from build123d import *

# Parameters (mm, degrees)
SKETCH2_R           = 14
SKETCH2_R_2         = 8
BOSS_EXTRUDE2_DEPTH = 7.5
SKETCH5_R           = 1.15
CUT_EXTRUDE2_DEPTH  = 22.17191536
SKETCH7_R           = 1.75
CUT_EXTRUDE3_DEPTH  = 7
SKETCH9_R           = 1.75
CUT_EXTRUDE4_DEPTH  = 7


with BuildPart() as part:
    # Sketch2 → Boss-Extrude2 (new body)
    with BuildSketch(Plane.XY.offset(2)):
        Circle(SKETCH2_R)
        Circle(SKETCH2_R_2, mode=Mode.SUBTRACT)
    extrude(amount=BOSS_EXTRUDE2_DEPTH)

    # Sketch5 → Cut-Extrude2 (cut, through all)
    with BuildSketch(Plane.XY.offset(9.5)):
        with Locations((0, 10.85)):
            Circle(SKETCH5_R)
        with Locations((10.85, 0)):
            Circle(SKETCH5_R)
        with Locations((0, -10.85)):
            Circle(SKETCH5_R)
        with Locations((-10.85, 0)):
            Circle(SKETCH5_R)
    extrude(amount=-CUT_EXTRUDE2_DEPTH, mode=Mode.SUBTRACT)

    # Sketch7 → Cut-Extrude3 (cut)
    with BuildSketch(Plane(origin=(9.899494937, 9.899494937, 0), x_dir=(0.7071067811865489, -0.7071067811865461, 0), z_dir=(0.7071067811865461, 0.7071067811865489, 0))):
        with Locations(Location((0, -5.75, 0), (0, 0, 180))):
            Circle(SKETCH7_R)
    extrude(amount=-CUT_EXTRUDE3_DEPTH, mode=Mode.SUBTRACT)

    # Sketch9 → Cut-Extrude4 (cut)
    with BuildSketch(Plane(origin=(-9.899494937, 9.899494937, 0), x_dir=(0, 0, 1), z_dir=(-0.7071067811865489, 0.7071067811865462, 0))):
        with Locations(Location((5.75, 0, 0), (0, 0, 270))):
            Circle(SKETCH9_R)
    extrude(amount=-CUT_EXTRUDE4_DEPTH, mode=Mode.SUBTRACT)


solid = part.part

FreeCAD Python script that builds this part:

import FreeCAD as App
import Part
import Sketcher

doc = App.newDocument("Part")
body = doc.addObject("PartDesign::Body", "Body")

sketch1 = body.newObject("Sketcher::SketchObject", "Sketch")
sketch1.AttachmentSupport = (doc.getObject("XY_Plane"), [""])
sketch1.MapMode = "FlatFace"
sketch1.AttachmentOffset = App.Placement(App.Vector(0, 0, 2), App.Rotation())
sketch1.addGeometry([
    Part.Circle(App.Vector(0, 0, 0), App.Vector(0, 0, 1), 14),
    Part.Circle(App.Vector(0, 0, 0), App.Vector(0, 0, 1), 8),
], False)
sketch1.addConstraint([
    Sketcher.Constraint("Coincident", 0, 3, -1, 1),
    Sketcher.Constraint("Coincident", 1, 3, -1, 1),
    Sketcher.Constraint("Diameter", 0, 28.0),
    Sketcher.Constraint("Diameter", 1, 16.0),
])
pad1 = body.newObject("PartDesign::Pad", "Pad")
pad1.Profile = sketch1
pad1.Length = 7.5

sketch2 = body.newObject("Sketcher::SketchObject", "Sketch001")
sketch2.AttachmentSupport = (doc.getObject("XY_Plane"), [""])
sketch2.MapMode = "FlatFace"
sketch2.AttachmentOffset = App.Placement(App.Vector(0, 0, 9.5), App.Rotation())
sketch2.addGeometry([
    Part.Circle(App.Vector(0, 10.8, 0), App.Vector(0, 0, 1), 1.1),
    Part.Circle(App.Vector(10.8, 0, 0), App.Vector(0, 0, 1), 1.1),
    Part.Circle(App.Vector(0, -10.8, 0), App.Vector(0, 0, 1), 1.1),
    Part.Circle(App.Vector(-10.8, 0, 0), App.Vector(0, 0, 1), 1.1),
], False)
sketch2.addConstraint([
    Sketcher.Constraint("Equal", 0, 1),
    Sketcher.Constraint("Equal", 1, 2),
    Sketcher.Constraint("Equal", 2, 3),
    Sketcher.Constraint("Symmetric", 0, 3, 2, 3, -1, 1),
    Sketcher.Constraint("Symmetric", 1, 3, 3, 3, -1, 1),
    Sketcher.Constraint("PointOnObject", 0, 3, -2),
    Sketcher.Constraint("PointOnObject", 1, 3, -1),
    Sketcher.Constraint("Diameter", 0, 2.3),
    Sketcher.Constraint("DistanceY", 2, 3, 0, 3, 21.7),
    Sketcher.Constraint("DistanceX", 3, 3, 1, 3, 21.7),
])
pocket1 = body.newObject("PartDesign::Pocket", "Pocket")
pocket1.Profile = sketch2
pocket1.Type = "ThroughAll"

sketch3 = body.newObject("Sketcher::SketchObject", "Sketch002")
sketch3.Placement = App.Placement(App.Vector(9.899495, 9.899495, 0), App.Rotation(App.Vector(0.707106781, -0.707106781, 0), App.Vector(0, 0, -0.999999999), App.Vector(0.707106781, 0.707106781, 0), "ZXY"))
sketch3.addGeometry(Part.Circle(App.Vector(0, -5.7, 0), App.Vector(0, 0, 1), 1.8), False)
sketch3.addConstraint([
    Sketcher.Constraint("PointOnObject", 0, 3, -2),
    Sketcher.Constraint("Diameter", 0, 3.5),
    Sketcher.Constraint("DistanceY", 0, 3, -1, 1, 5.75),
])
pocket2 = body.newObject("PartDesign::Pocket", "Pocket001")
pocket2.Profile = sketch3
pocket2.Length = 7

sketch4 = body.newObject("Sketcher::SketchObject", "Sketch003")
sketch4.Placement = App.Placement(App.Vector(-9.899495, 9.899495, 0), App.Rotation(App.Vector(0, 0, 1), App.Vector(0.707106781, 0.707106781, 0), App.Vector(-0.707106781, 0.707106781, 0), "ZXY"))
sketch4.addGeometry(Part.Circle(App.Vector(5.8, 0, 0), App.Vector(0, 0, 1), 1.8), False)
sketch4.addConstraint([
    Sketcher.Constraint("PointOnObject", 0, 3, -1),
    Sketcher.Constraint("Diameter", 0, 3.5),
    Sketcher.Constraint("DistanceX", -1, 1, 0, 3, 5.75),
])
pocket3 = body.newObject("PartDesign::Pocket", "Pocket002")
pocket3.Profile = sketch4
pocket3.Length = 7

doc.recompute()
